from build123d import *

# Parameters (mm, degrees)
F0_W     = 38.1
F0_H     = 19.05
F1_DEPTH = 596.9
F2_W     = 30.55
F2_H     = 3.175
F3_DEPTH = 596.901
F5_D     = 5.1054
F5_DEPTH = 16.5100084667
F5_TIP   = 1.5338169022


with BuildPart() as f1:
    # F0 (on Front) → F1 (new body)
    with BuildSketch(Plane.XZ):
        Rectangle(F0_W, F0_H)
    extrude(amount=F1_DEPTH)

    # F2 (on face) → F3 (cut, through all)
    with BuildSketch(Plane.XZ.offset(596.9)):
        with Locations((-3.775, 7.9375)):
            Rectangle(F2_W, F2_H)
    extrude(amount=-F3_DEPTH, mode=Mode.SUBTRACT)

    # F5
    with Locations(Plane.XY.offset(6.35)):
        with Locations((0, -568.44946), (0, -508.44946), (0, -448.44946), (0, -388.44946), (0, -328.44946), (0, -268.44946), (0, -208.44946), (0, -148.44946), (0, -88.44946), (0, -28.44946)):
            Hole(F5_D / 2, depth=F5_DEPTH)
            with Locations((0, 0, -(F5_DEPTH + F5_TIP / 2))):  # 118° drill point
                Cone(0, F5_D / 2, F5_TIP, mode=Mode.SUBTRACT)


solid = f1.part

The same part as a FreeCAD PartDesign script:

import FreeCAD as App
import Part
import Sketcher

V = App.Vector
Q = App.Units.Quantity

doc = App.newDocument("Part")
body = doc.addObject("PartDesign::Body", "Body")

sketch1 = body.newObject("Sketcher::SketchObject", "Sketch")
sketch1.AttachmentSupport = (doc.getObject("XZ_Plane"), [""])
sketch1.MapMode = "FlatFace"
sketch1.addGeometry(Part.LineSegment(V(-19, 10, 0), V(-19, -10, 0)), False)
sketch1.addGeometry(Part.LineSegment(V(-19, -10, 0), V(19, -10, 0)), False)
sketch1.addGeometry(Part.LineSegment(V(19, -10, 0), V(19, 10, 0)), False)
sketch1.addGeometry(Part.LineSegment(V(19, 10, 0), V(-19, 10, 0)), False)
sketch1.addConstraint(Sketcher.Constraint("Coincident", 0, 2, 1, 1))
sketch1.addConstraint(Sketcher.Constraint("Coincident", 1, 2, 2, 1))
sketch1.addConstraint(Sketcher.Constraint("Coincident", 2, 2, 3, 1))
sketch1.addConstraint(Sketcher.Constraint("Coincident", 3, 2, 0, 1))
sketch1.addConstraint(Sketcher.Constraint("Vertical", 0))
sketch1.addConstraint(Sketcher.Constraint("Horizontal", 1))
sketch1.addConstraint(Sketcher.Constraint("Vertical", 2))
sketch1.addConstraint(Sketcher.Constraint("Horizontal", 3))
sketch1.addConstraint(Sketcher.Constraint("Symmetric", 0, 2, 2, 2, -1, 1))
sketch1.addConstraint(Sketcher.Constraint("DistanceX", 1, 1, 1, 2, Q("1.5 in")))
sketch1.addConstraint(Sketcher.Constraint("DistanceY", 0, 2, 0, 1, Q("0.75 in")))
pad1 = body.newObject("PartDesign::Pad", "Pad")
pad1.Profile = sketch1
pad1.Length = Q("23.5 in")

sketch2 = body.newObject("Sketcher::SketchObject", "Sketch001")
sketch2.AttachmentSupport = (doc.getObject("XZ_Plane"), [""])
sketch2.MapMode = "FlatFace"
sketch2.AttachmentOffset = App.Placement(V(0, 0, 23.5 * 25.4), App.Rotation())
sketch2.addGeometry(Part.LineSegment(V(-19.1, 9.5, 0), V(-19.1, 6.3, 0)), False)
sketch2.addGeometry(Part.LineSegment(V(-19.1, 6.3, 0), V(11.5, 6.3, 0)), False)
sketch2.addGeometry(Part.LineSegment(V(11.5, 6.3, 0), V(11.5, 9.5, 0)), False)
sketch2.addGeometry(Part.LineSegment(V(11.5, 9.5, 0), V(-19.1, 9.5, 0)), False)
sketch2.addConstraint(Sketcher.Constraint("Coincident", 0, 2, 1, 1))
sketch2.addConstraint(Sketcher.Constraint("Coincident", 1, 2, 2, 1))
sketch2.addConstraint(Sketcher.Constraint("Coincident", 2, 2, 3, 1))
sketch2.addConstraint(Sketcher.Constraint("Coincident", 3, 2, 0, 1))
sketch2.addConstraint(Sketcher.Constraint("Vertical", 0))
sketch2.addConstraint(Sketcher.Constraint("Horizontal", 1))
sketch2.addConstraint(Sketcher.Constraint("Vertical", 2))
sketch2.addConstraint(Sketcher.Constraint("Horizontal", 3))
sketch2.addConstraint(Sketcher.Constraint("DistanceY", 0, 2, 0, 1, Q("0.125 in")))
sketch2.addConstraint(Sketcher.Constraint("DistanceX", 0, 2, -1, 1, Q("0.75 in")))
sketch2.addConstraint(Sketcher.Constraint("DistanceY", -1, 1, 0, 2, Q("0.25 in")))
sketch2.addConstraint(Sketcher.Constraint("DistanceX", 1, 1, 1, 2, Q("30.55 mm")))
pocket1 = body.newObject("PartDesign::Pocket", "Pocket")
pocket1.Profile = sketch2
pocket1.Type = "ThroughAll"

sketch3 = body.newObject("Sketcher::SketchObject", "Sketch002")
sketch3.AttachmentSupport = (doc.getObject("XY_Plane"), [""])
sketch3.MapMode = "FlatFace"
sketch3.AttachmentOffset = App.Placement(V(0, 0, 0.25 * 25.4), App.Rotation())
sketch3.addGeometry(Part.Circle(V(0, -568.4, 0), V(0, 0, 1), 2.6), False)
sketch3.addGeometry(Part.Circle(V(0, -508.4, 0), V(0, 0, 1), 2.6), False)
sketch3.addGeometry(Part.Circle(V(0, -448.4, 0), V(0, 0, 1), 2.6), False)
sketch3.addGeometry(Part.Circle(V(0, -388.4, 0), V(0, 0, 1), 2.6), False)
sketch3.addGeometry(Part.Circle(V(0, -328.4, 0), V(0, 0, 1), 2.6), False)
sketch3.addGeometry(Part.Circle(V(0, -268.4, 0), V(0, 0, 1), 2.6), False)
sketch3.addGeometry(Part.Circle(V(0, -208.4, 0), V(0, 0, 1), 2.6), False)
sketch3.addGeometry(Part.Circle(V(0, -148.4, 0), V(0, 0, 1), 2.6), False)
sketch3.addGeometry(Part.Circle(V(0, -88.4, 0), V(0, 0, 1), 2.6), False)
sketch3.addGeometry(Part.Circle(V(0, -28.4, 0), V(0, 0, 1), 2.6), False)
sketch3.addConstraint(Sketcher.Constraint("Equal", 0, 1))
sketch3.addConstraint(Sketcher.Constraint("Equal", 1, 2))
sketch3.addConstraint(Sketcher.Constraint("Equal", 2, 3))
sketch3.addConstraint(Sketcher.Constraint("Equal", 3, 4))
sketch3.addConstraint(Sketcher.Constraint("Equal", 4, 5))
sketch3.addConstraint(Sketcher.Constraint("Equal", 5, 6))
sketch3.addConstraint(Sketcher.Constraint("Equal", 6, 7))
sketch3.addConstraint(Sketcher.Constraint("Equal", 7, 8))
sketch3.addConstraint(Sketcher.Constraint("Equal", 8, 9))
sketch3.addConstraint(Sketcher.Constraint("PointOnObject", 0, 3, -2))
sketch3.addConstraint(Sketcher.Constraint("PointOnObject", 1, 3, -2))
sketch3.addConstraint(Sketcher.Constraint("PointOnObject", 2, 3, -2))
sketch3.addConstraint(Sketcher.Constraint("PointOnObject", 3, 3, -2))
sketch3.addConstraint(Sketcher.Constraint("PointOnObject", 4, 3, -2))
sketch3.addConstraint(Sketcher.Constraint("PointOnObject", 5, 3, -2))
sketch3.addConstraint(Sketcher.Constraint("PointOnObject", 6, 3, -2))
sketch3.addConstraint(Sketcher.Constraint("PointOnObject", 7, 3, -2))
sketch3.addConstraint(Sketcher.Constraint("PointOnObject", 8, 3, -2))
sketch3.addConstraint(Sketcher.Constraint("PointOnObject", 9, 3, -2))
sketch3.addConstraint(Sketcher.Constraint("Diameter", 0, Q("0.201 in")))
sketch3.addConstraint(Sketcher.Constraint("DistanceY", 0, 3, -1, 1, Q("22.3799 in")))
sketch3.addConstraint(Sketcher.Constraint("DistanceY", 0, 3, 1, 3, Q("60 mm")))
sketch3.addConstraint(Sketcher.Constraint("DistanceY", 1, 3, 2, 3, Q("60 mm")))
sketch3.addConstraint(Sketcher.Constraint("DistanceY", 2, 3, 3, 3, Q("60 mm")))
sketch3.addConstraint(Sketcher.Constraint("DistanceY", 3, 3, 4, 3, Q("60 mm")))
sketch3.addConstraint(Sketcher.Constraint("DistanceY", 4, 3, 5, 3, Q("60 mm")))
sketch3.addConstraint(Sketcher.Constraint("DistanceY", 5, 3, 6, 3, Q("60 mm")))
sketch3.addConstraint(Sketcher.Constraint("DistanceY", 6, 3, 7, 3, Q("60 mm")))
sketch3.addConstraint(Sketcher.Constraint("DistanceY", 7, 3, 8, 3, Q("60 mm")))
sketch3.addConstraint(Sketcher.Constraint("DistanceY", 8, 3, 9, 3, Q("60 mm")))
doc.recompute()
hole = body.newObject("PartDesign::Hole", "Hole")
hole.Profile = sketch3
hole.ThreadType = "None"
hole.Diameter = Q("0.201 in")
hole.DepthType = "Dimension"
hole.Depth = 16.510008
hole.DrillPoint = "Angled"
hole.DrillPointAngle = 118

doc.recompute()
